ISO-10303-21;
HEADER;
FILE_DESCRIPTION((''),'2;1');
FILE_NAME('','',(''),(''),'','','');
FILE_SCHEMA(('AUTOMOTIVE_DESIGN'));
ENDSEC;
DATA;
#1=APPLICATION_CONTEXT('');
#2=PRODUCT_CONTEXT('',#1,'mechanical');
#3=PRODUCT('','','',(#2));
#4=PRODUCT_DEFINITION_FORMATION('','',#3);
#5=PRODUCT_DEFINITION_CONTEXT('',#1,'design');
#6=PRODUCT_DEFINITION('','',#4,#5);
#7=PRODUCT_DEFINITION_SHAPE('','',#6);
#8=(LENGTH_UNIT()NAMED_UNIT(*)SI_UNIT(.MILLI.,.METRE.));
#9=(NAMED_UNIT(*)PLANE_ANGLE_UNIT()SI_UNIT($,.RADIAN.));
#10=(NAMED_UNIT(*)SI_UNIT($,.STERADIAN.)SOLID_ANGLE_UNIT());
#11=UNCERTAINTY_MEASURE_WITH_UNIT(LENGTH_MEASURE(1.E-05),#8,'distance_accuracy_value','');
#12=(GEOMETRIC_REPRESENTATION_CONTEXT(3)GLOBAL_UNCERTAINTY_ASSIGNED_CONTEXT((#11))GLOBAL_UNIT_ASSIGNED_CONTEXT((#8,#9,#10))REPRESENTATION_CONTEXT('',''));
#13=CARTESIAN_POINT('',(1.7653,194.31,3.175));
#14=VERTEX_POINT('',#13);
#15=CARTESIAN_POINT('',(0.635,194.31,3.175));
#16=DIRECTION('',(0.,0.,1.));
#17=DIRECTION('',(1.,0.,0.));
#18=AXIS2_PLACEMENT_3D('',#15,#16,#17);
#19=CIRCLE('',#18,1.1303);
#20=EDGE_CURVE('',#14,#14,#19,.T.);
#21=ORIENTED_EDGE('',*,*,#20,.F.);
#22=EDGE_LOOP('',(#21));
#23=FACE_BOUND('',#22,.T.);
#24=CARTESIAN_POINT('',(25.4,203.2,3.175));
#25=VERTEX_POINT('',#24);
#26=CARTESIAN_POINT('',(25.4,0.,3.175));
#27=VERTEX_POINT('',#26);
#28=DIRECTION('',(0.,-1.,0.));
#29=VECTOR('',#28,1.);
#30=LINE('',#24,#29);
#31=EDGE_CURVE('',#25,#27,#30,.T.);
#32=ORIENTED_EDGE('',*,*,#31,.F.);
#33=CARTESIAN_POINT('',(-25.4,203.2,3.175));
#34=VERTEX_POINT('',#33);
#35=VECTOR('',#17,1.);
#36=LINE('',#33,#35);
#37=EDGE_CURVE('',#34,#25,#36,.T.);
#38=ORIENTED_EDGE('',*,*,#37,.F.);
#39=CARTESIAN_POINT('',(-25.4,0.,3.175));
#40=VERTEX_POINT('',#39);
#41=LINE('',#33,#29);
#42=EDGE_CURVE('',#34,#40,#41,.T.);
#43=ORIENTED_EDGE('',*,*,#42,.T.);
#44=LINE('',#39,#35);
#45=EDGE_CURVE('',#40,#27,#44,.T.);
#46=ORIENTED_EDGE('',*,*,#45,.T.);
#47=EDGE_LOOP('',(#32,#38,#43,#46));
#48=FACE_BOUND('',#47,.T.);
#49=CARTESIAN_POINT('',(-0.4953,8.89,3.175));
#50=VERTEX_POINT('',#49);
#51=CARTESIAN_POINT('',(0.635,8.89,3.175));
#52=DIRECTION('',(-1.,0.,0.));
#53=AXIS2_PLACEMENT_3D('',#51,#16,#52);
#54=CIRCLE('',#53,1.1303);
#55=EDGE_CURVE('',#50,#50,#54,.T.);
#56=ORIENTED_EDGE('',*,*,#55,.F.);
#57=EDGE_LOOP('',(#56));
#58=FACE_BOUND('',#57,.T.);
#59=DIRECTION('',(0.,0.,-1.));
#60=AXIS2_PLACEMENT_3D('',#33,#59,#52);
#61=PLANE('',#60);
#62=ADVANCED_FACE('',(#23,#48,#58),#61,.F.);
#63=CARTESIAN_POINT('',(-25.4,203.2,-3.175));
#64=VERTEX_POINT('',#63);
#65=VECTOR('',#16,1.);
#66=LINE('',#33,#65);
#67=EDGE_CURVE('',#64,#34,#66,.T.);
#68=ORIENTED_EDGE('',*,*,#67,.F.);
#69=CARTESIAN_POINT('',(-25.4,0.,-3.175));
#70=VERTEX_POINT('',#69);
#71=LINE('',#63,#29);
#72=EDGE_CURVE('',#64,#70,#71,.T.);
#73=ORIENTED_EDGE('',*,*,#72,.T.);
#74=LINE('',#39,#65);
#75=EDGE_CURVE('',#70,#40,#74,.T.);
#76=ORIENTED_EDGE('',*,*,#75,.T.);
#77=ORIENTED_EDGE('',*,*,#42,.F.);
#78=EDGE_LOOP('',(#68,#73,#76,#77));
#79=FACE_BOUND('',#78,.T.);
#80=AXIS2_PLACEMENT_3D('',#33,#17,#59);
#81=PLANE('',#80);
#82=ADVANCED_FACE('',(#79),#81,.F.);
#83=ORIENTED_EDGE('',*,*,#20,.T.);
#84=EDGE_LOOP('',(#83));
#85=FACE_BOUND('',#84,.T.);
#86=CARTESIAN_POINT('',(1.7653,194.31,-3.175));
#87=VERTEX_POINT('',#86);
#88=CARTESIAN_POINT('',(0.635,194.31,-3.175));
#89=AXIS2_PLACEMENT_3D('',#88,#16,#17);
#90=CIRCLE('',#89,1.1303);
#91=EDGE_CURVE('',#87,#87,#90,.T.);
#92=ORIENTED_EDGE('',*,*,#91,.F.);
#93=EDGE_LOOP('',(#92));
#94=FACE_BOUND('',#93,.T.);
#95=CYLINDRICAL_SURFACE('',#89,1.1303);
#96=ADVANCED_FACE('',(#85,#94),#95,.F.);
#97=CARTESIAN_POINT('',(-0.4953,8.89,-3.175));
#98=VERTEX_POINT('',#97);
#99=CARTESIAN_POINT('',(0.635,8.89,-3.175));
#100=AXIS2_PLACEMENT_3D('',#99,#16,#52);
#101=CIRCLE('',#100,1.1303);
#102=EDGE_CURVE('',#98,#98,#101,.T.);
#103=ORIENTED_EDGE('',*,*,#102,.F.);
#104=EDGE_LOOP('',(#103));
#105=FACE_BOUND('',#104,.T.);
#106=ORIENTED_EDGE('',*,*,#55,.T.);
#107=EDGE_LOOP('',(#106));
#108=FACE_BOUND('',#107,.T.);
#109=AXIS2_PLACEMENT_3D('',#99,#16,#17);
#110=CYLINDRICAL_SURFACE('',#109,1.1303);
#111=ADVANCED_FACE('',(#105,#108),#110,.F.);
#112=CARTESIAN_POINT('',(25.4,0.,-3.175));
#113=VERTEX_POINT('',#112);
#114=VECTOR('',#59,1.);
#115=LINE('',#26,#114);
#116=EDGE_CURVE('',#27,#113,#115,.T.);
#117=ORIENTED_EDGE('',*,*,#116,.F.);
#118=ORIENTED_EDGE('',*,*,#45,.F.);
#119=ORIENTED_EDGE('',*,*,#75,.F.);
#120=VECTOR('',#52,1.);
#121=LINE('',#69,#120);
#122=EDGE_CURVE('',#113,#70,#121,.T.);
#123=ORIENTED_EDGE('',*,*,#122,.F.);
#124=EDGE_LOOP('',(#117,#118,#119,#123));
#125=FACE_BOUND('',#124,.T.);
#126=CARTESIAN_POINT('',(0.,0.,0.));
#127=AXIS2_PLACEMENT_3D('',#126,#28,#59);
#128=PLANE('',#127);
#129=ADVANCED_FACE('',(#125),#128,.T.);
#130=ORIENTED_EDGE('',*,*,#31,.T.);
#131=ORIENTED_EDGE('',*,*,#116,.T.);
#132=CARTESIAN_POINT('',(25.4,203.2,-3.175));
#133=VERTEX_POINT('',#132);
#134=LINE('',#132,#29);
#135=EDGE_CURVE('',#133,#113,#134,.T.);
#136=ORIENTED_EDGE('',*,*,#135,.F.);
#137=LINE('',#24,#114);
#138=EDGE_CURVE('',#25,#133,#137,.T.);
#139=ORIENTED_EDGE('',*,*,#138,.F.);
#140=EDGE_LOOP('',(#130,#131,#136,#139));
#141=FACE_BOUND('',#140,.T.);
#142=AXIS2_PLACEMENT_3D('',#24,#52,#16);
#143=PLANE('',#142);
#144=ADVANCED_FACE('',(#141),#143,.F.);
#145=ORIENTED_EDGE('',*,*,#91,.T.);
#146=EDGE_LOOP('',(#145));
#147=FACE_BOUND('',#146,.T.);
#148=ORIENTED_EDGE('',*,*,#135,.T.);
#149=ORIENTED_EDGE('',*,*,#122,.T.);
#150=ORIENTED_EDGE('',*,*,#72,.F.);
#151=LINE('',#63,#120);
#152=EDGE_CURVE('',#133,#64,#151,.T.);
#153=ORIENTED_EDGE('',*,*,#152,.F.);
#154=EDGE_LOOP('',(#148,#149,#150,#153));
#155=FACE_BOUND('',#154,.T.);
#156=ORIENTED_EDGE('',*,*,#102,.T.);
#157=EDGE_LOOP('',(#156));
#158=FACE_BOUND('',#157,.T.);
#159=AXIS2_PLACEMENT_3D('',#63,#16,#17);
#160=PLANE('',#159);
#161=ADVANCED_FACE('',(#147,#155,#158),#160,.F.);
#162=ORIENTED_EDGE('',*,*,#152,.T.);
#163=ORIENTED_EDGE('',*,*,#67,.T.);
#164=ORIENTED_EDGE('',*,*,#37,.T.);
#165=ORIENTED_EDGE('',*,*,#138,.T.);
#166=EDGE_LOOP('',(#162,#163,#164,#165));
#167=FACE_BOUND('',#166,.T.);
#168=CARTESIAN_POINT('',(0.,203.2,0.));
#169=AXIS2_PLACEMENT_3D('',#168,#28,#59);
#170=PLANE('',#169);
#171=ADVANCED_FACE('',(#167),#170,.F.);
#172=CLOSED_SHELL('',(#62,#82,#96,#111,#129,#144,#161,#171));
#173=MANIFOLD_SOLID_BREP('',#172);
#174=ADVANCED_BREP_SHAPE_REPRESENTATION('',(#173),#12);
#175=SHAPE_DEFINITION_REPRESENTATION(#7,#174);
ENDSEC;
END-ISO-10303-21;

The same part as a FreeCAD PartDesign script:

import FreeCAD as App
import Part
import Sketcher
Q = App.Units.Quantity


def add_polygon(sketch, points):
    """Adds a closed chain of lines whose ends are joined by coincident constraints."""
    first, n = sketch.GeometryCount, len(points)
    for a, b in zip(points, points[1:] + points[:1]):
        sketch.addGeometry(Part.LineSegment(App.Vector(*a, 0), App.Vector(*b, 0)), False)
    for i in range(n):
        sketch.addConstraint(Sketcher.Constraint("Coincident", first + i, 2, first + (i + 1) % n, 1))

doc = App.newDocument("Part")
body = doc.addObject("PartDesign::Body", "Body")

# Sketch on XZ plane
sketch1 = body.newObject("Sketcher::SketchObject", "Sketch")
sketch1.AttachmentSupport = (doc.getObject("XZ_Plane"), [""])
sketch1.MapMode = "FlatFace"
add_polygon(sketch1, [(-25, -3), (-25, 3), (25, 3), (25, -3)])  # lines 0-3
sketch1.addConstraint([
    Sketcher.Constraint("Vertical", 0),
    Sketcher.Constraint("Horizontal", 1),
    Sketcher.Constraint("Vertical", 2),
    Sketcher.Constraint("Horizontal", 3),
    Sketcher.Constraint("Symmetric", 0, 2, 2, 2, -1, 1),
    Sketcher.Constraint("DistanceX", 1, 1, 1, 2, Q("2 in")),
    Sketcher.Constraint("DistanceY", 0, 1, 0, 2, Q("0.25 in")),
])
pad1 = body.newObject("PartDesign::Pad", "Pad")
pad1.Profile = sketch1
pad1.Length = Q("8 in")
pad1.Reversed = True

# Sketch on XY plane
sketch2 = body.newObject("Sketcher::SketchObject", "Sketch001")
sketch2.AttachmentSupport = (doc.getObject("XY_Plane"), [""])
sketch2.MapMode = "FlatFace"
sketch2.AttachmentOffset = App.Placement(App.Vector(0, 0, 0.125 * 25.4), App.Rotation())
sketch2.addGeometry([
    Part.Circle(App.Vector(0.6, 194.3, 0), App.Vector(0, 0, 1), 1.1),
    Part.Circle(App.Vector(0.6, 8.9, 0), App.Vector(0, 0, 1), 1.1),
], False)
sketch2.addConstraint([
    Sketcher.Constraint("Equal", 0, 1),
    Sketcher.Constraint("Vertical", 0, 3, 1, 3),
    Sketcher.Constraint("Diameter", 0, Q("0.089 in")),
    Sketcher.Constraint("DistanceY", 1, 3, 0, 3, Q("7.3 in")),
    Sketcher.Constraint("DistanceY", -1, 1, 0, 3, Q("7.65 in")),
    Sketcher.Constraint("DistanceX", -1, 1, 0, 3, Q("0.025 in")),
])
pocket1 = body.newObject("PartDesign::Pocket", "Pocket")
pocket1.Profile = sketch2
pocket1.Type = "ThroughAll"

doc.recompute()
